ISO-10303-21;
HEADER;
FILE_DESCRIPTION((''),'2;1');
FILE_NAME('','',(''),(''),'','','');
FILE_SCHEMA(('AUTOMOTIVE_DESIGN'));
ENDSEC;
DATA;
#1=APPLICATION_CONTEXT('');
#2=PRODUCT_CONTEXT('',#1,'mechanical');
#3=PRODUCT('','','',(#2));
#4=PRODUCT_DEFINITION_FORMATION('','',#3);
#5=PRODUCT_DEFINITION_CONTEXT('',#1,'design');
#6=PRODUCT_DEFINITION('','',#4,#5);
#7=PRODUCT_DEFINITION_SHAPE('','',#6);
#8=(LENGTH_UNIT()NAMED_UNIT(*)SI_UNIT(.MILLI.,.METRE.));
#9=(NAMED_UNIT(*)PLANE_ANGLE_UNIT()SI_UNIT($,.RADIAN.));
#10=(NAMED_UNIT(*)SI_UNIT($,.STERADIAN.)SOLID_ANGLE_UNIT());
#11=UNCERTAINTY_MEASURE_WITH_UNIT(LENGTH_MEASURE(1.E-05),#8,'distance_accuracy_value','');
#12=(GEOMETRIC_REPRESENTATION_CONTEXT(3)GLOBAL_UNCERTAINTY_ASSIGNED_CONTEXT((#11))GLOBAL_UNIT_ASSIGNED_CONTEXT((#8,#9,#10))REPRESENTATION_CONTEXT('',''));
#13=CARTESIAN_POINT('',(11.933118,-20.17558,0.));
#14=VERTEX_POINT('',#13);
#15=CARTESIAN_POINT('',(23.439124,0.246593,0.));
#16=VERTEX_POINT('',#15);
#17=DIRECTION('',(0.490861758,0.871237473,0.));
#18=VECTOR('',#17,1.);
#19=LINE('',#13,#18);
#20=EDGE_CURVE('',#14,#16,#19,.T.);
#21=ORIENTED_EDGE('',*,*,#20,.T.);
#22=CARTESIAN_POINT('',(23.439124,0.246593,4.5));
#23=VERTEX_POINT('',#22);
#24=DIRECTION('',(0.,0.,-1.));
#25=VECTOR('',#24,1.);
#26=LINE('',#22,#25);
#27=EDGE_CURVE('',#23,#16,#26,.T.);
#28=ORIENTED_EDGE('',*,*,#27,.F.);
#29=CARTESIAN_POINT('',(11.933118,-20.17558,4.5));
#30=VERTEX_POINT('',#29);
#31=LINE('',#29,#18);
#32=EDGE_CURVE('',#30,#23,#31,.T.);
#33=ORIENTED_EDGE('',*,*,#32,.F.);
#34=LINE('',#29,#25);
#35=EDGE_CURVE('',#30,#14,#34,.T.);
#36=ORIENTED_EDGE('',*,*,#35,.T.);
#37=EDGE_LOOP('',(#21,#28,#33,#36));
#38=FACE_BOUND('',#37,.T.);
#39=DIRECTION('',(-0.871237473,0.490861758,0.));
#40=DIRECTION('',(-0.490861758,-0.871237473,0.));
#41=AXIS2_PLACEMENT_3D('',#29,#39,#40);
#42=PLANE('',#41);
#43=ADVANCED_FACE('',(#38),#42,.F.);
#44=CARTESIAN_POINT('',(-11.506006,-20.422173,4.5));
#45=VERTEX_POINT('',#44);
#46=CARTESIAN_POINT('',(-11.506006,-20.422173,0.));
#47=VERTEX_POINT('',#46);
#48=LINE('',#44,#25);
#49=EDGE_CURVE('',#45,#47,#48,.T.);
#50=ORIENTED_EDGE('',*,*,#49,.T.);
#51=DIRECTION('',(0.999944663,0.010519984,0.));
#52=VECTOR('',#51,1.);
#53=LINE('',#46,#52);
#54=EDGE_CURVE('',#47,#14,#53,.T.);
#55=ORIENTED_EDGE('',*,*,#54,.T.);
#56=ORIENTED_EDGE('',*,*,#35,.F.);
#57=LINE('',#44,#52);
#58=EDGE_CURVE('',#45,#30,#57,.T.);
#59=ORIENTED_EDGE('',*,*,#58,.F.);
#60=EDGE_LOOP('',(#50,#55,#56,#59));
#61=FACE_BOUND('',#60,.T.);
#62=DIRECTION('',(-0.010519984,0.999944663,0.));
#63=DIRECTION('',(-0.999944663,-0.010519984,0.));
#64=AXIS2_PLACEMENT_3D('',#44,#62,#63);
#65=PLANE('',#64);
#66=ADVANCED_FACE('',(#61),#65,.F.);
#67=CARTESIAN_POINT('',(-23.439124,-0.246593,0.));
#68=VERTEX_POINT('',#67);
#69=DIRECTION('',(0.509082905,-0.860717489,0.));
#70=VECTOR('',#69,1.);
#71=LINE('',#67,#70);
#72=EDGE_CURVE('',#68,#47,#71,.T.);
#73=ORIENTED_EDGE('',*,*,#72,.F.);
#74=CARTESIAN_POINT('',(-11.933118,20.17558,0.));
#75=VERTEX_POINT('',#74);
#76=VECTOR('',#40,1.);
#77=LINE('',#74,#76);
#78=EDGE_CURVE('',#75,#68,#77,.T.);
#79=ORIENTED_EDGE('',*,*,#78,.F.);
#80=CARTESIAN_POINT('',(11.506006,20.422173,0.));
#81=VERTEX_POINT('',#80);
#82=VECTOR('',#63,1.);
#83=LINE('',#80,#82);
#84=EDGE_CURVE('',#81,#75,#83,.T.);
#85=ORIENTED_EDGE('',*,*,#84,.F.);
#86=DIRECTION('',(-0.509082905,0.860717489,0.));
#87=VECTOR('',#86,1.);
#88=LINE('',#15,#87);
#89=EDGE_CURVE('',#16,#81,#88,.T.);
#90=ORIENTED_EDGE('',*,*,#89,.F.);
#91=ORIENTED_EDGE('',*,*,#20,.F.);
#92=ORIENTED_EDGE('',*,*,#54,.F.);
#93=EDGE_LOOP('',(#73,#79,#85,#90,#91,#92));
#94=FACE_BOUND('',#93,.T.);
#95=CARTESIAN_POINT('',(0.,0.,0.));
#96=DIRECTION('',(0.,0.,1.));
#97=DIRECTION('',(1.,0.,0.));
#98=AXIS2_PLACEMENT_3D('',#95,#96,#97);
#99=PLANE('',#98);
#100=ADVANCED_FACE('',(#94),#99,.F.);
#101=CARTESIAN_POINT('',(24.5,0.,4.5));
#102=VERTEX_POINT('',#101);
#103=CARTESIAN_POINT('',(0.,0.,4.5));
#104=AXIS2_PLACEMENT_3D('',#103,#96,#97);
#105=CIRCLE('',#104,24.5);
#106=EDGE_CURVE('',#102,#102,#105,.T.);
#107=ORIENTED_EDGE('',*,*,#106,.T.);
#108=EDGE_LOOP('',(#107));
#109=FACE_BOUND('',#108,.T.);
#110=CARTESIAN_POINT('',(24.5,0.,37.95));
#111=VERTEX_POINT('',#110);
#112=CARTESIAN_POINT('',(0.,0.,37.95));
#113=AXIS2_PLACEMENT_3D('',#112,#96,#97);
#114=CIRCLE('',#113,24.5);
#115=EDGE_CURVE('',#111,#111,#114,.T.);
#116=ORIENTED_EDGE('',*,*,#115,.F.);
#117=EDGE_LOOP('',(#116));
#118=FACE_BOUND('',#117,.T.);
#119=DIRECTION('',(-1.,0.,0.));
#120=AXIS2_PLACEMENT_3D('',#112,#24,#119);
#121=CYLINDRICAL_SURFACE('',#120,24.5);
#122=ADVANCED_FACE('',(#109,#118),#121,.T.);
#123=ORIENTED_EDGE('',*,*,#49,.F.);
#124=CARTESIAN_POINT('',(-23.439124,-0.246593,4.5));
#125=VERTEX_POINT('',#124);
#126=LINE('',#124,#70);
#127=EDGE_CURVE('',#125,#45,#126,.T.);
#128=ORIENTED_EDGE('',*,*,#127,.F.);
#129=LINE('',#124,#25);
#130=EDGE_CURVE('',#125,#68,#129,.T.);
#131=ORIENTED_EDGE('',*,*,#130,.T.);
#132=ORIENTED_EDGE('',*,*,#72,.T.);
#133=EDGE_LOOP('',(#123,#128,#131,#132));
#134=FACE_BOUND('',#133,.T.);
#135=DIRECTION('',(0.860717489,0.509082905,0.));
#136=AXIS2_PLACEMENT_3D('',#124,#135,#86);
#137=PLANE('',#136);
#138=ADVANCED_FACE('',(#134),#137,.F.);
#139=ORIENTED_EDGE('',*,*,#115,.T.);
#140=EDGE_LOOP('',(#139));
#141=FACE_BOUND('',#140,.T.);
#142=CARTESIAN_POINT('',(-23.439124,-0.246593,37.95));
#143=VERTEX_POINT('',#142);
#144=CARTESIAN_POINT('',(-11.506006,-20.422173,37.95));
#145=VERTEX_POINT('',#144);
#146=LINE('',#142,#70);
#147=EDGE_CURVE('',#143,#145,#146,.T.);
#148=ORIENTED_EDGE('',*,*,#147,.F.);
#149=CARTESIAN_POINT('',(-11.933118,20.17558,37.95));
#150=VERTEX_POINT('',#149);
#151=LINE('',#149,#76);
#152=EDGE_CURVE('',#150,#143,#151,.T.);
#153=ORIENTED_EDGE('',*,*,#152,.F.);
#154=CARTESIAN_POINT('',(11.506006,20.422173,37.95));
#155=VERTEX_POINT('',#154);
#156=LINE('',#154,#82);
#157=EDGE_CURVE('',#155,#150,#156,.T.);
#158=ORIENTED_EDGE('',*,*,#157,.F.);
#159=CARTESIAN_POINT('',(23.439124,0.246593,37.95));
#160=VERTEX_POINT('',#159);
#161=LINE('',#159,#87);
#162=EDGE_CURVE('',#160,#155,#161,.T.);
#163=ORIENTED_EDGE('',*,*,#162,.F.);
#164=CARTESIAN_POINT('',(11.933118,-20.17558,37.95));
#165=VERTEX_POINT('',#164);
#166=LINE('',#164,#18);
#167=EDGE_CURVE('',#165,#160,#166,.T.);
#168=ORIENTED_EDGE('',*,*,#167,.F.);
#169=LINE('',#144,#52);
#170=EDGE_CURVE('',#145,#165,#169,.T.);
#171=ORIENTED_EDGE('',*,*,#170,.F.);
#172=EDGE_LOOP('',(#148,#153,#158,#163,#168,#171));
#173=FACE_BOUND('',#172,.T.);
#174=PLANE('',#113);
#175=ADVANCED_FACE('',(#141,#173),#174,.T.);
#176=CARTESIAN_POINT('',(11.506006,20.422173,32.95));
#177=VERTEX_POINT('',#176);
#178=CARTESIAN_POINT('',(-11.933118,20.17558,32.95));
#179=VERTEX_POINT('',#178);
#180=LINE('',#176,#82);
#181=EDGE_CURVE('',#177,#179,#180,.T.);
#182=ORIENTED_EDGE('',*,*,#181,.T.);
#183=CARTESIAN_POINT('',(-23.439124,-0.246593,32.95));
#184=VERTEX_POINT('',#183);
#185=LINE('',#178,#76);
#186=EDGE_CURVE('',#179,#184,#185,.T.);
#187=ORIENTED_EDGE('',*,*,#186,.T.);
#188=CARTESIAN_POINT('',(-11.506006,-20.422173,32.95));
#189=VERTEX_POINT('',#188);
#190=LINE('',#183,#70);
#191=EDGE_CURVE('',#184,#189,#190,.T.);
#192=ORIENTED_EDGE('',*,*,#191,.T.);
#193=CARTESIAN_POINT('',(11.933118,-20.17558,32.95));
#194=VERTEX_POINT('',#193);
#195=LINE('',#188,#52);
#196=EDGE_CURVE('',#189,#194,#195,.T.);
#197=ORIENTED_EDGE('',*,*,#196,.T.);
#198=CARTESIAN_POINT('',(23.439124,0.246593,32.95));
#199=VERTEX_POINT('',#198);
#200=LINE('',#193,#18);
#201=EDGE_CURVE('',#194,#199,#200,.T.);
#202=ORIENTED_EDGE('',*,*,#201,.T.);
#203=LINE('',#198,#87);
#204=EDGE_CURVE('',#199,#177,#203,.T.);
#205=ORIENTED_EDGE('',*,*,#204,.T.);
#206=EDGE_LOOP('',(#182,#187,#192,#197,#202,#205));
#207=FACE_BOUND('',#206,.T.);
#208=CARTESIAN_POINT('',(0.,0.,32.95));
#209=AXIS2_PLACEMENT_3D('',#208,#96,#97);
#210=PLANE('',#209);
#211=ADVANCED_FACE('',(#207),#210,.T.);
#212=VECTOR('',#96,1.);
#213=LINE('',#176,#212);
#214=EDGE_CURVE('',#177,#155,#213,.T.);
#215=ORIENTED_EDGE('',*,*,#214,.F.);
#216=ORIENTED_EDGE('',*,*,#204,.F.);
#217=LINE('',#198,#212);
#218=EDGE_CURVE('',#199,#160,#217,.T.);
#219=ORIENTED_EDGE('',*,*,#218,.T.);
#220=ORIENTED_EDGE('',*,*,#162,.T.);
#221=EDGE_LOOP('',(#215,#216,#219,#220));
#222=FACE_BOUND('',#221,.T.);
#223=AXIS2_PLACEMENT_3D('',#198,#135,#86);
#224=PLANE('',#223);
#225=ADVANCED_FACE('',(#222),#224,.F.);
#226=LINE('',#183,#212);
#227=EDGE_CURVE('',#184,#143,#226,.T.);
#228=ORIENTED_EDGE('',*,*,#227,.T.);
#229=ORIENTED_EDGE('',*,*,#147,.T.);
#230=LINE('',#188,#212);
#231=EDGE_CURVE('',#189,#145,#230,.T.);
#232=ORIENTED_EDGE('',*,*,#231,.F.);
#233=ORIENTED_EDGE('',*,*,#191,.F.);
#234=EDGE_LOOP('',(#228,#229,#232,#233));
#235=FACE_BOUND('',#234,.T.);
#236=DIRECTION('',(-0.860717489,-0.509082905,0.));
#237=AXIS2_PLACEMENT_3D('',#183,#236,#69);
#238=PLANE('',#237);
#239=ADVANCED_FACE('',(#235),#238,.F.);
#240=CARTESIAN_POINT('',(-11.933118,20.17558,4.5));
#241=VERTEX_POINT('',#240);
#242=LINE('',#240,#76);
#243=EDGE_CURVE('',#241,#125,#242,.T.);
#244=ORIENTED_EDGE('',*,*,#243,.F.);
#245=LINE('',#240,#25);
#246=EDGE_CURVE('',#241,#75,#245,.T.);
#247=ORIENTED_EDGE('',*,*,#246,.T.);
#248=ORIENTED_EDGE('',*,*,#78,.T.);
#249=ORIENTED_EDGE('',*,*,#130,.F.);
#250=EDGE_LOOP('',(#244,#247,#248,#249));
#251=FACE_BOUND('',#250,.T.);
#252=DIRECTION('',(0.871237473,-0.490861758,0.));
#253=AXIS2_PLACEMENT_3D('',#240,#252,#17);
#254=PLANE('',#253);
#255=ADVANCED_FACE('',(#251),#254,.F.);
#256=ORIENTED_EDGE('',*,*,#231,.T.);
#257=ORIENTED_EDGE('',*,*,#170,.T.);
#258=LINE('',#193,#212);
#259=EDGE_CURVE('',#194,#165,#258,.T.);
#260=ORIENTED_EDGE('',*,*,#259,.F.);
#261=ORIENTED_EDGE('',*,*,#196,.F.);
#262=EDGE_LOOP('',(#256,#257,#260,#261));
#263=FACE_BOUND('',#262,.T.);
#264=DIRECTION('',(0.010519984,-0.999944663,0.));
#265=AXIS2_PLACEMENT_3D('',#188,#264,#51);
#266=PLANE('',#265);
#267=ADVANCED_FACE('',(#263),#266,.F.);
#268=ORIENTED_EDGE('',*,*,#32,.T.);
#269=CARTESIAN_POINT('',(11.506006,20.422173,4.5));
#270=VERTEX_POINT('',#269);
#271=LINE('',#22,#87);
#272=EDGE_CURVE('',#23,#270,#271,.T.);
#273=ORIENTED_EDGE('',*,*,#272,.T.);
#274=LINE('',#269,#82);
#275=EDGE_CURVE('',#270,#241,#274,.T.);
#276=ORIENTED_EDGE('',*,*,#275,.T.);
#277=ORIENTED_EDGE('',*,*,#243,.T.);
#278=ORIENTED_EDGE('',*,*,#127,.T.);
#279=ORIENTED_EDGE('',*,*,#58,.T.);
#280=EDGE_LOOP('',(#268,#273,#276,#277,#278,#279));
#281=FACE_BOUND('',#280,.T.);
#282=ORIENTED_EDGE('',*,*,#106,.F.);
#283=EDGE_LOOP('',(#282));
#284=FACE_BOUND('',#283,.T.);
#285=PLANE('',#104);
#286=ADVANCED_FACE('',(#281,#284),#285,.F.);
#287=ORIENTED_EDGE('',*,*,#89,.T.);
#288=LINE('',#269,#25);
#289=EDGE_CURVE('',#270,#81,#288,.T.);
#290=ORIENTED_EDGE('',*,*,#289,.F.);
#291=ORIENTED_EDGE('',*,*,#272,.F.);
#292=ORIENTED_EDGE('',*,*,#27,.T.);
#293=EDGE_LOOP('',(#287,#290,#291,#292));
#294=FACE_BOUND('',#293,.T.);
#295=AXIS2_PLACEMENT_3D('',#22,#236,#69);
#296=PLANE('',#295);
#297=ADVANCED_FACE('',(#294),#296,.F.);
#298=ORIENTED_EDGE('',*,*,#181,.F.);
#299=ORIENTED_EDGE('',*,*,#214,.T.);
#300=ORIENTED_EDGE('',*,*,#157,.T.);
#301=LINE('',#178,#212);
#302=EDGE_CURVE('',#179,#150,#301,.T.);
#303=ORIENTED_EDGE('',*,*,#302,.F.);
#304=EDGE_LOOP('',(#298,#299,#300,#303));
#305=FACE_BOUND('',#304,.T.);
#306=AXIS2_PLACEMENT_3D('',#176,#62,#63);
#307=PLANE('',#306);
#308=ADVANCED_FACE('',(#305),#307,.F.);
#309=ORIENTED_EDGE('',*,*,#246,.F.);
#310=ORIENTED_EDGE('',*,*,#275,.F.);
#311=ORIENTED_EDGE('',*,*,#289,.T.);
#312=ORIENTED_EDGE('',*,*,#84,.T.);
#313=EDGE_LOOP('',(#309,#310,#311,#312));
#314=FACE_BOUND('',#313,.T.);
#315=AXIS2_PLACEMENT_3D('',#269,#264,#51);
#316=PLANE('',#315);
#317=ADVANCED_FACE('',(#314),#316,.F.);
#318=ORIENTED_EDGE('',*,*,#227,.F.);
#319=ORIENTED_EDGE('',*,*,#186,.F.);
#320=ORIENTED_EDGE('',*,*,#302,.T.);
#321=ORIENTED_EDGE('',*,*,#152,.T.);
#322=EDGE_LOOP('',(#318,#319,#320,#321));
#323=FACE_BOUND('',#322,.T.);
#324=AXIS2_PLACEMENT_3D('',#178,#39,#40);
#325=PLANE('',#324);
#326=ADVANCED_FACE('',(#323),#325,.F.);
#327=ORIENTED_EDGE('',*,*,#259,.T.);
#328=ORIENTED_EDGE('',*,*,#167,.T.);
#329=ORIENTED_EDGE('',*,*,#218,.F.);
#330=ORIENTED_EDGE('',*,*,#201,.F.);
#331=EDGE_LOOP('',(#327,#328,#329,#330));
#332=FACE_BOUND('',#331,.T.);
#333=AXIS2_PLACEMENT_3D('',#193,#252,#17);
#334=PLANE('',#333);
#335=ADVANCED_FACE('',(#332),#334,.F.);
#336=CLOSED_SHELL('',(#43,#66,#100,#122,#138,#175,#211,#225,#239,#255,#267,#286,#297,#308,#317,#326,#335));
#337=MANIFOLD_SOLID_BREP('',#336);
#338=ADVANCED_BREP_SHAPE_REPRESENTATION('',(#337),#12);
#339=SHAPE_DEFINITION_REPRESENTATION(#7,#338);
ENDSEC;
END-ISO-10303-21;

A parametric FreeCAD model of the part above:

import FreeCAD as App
import Part
import Sketcher

V = App.Vector
Q = App.Units.Quantity


def add_polygon(sketch, points):
    """Adds a closed chain of lines whose ends are joined by coincident constraints."""
    first, n = sketch.GeometryCount, len(points)
    for a, b in zip(points, points[1:] + points[:1]):
        sketch.addGeometry(Part.LineSegment(App.Vector(*a, 0), App.Vector(*b, 0)), False)
    for i in range(n):
        sketch.addConstraint(Sketcher.Constraint("Coincident", first + i, 2, first + (i + 1) % n, 1))

doc = App.newDocument("Part")
params = doc.addObject("Spreadsheet::Sheet", "Params")
for row, (alias, value) in enumerate([
    ("pad1_length", "4.5 mm"),
    ("sketch2_diameter", "49 mm"),
    ("pad2_length", "33.45 mm"),
    ("pocket1_length", "5 mm"),
], start=1):
    params.set(f"A{row}", alias)
    params.set(f"B{row}", "=" + value)
    params.setAlias(f"B{row}", alias)

body = doc.addObject("PartDesign::Body", "Body")

# Sketch on XY plane
sketch1 = body.newObject("Sketcher::SketchObject", "Sketch")
sketch1.AttachmentSupport = (doc.getObject("XY_Plane"), [""])
sketch1.MapMode = "FlatFace"
add_polygon(sketch1, [(-12, 20), (-23, 0), (-12, -20), (12, -20), (23, 0), (12, 20)])  # lines 0-5
sketch1.addConstraint(Sketcher.Constraint("Symmetric", 0, 2, 3, 2, -1, 1))
sketch1.addConstraint(Sketcher.Constraint("Symmetric", 1, 2, 4, 2, -1, 1))
sketch1.addConstraint(Sketcher.Constraint("Symmetric", 2, 2, 5, 2, -1, 1))
sketch1.addConstraint(Sketcher.Constraint("Equal", 0, 1))
sketch1.addConstraint(Sketcher.Constraint("Equal", 1, 2))
sketch1.addConstraint(Sketcher.Constraint("Distance", 0, Q("23.440421 mm")))
sketch1.addConstraint(Sketcher.Constraint("DistanceY", 2, 2, -1, 1, Q("20.17558 mm")))
sketch1.addConstraint(Sketcher.Constraint("DistanceY", 1, 2, 0, 2, Q("20.17558 mm")))
sketch1.addConstraint(Sketcher.Constraint("DistanceX", 1, 2, 3, 2, Q("34.94513 mm")))
pad1 = body.newObject("PartDesign::Pad", "Pad")
pad1.Profile = sketch1
pad1.setExpression("Length", "Params.pad1_length")

# Sketch on XY plane
sketch2 = body.newObject("Sketcher::SketchObject", "Sketch001")
sketch2.AttachmentSupport = (doc.getObject("XY_Plane"), [""])
sketch2.MapMode = "FlatFace"
sketch2.AttachmentOffset = App.Placement(V(0, 0, 4.5), App.Rotation())
sketch2.addGeometry(Part.Circle(V(0, 0, 0), V(0, 0, 1), 24), False)
sketch2.addConstraint(Sketcher.Constraint("Coincident", 0, 3, -1, 1))
sketch2.addConstraint(Sketcher.Constraint("Diameter", 0, Q("49 mm")))
sketch2.setExpression("Constraints[1]", "Params.sketch2_diameter")
pad2 = body.newObject("PartDesign::Pad", "Pad001")
pad2.Profile = sketch2
pad2.setExpression("Length", "Params.pad2_length")

# Sketch on XY plane
sketch3 = body.newObject("Sketcher::SketchObject", "Sketch002")
sketch3.AttachmentSupport = (doc.getObject("XY_Plane"), [""])
sketch3.MapMode = "FlatFace"
sketch3.AttachmentOffset = App.Placement(V(0, 0, 37.95), App.Rotation())
add_polygon(sketch3, [(12, 20), (-12, 20), (-23, 0), (-12, -20), (12, -20), (23, 0)])  # lines 0-5
sketch3.addConstraint(Sketcher.Constraint("Symmetric", 0, 2, 3, 2, -1, 1))
sketch3.addConstraint(Sketcher.Constraint("Symmetric", 1, 2, 4, 2, -1, 1))
sketch3.addConstraint(Sketcher.Constraint("Symmetric", 2, 2, 5, 2, -1, 1))
sketch3.addConstraint(Sketcher.Constraint("Equal", 0, 1))
sketch3.addConstraint(Sketcher.Constraint("Equal", 1, 2))
sketch3.addConstraint(Sketcher.Constraint("Distance", 0, Q("23.440421 mm")))
sketch3.addConstraint(Sketcher.Constraint("DistanceY", -1, 1, 0, 2, Q("20.17558 mm")))
sketch3.addConstraint(Sketcher.Constraint("DistanceY", 2, 2, 1, 2, Q("20.17558 mm")))
sketch3.addConstraint(Sketcher.Constraint("DistanceX", 0, 2, 2, 2, Q("0.427111 mm")))
pocket1 = body.newObject("PartDesign::Pocket", "Pocket")
pocket1.Profile = sketch3
pocket1.setExpression("Length", "Params.pocket1_length")

doc.recompute()
